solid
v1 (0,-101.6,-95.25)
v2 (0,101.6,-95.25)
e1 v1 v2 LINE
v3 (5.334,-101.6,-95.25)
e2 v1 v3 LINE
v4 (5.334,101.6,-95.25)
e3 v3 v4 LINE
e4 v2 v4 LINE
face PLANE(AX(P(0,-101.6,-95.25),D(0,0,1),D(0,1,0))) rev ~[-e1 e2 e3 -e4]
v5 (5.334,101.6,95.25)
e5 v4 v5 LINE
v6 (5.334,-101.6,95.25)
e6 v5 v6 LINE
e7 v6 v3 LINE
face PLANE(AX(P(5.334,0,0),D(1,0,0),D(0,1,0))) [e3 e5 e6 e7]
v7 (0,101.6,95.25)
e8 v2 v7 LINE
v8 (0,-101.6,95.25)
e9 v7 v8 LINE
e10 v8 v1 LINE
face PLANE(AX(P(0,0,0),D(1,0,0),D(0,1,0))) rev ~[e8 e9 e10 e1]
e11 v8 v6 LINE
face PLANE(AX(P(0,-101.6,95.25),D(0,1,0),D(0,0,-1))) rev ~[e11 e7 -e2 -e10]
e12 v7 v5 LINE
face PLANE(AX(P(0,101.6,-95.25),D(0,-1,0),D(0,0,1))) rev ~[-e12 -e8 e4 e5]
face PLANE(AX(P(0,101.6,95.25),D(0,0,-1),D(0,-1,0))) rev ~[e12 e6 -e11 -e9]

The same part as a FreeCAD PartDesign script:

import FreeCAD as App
import Part
import Sketcher
from FreeCAD import Vector
Q = App.Units.Quantity


def add_polygon(sketch, points):
    """Adds a closed chain of lines whose ends are joined by coincident constraints."""
    first, n = sketch.GeometryCount, len(points)
    for a, b in zip(points, points[1:] + points[:1]):
        sketch.addGeometry(Part.LineSegment(App.Vector(*a, 0), App.Vector(*b, 0)), False)
    for i in range(n):
        sketch.addConstraint(Sketcher.Constraint("Coincident", first + i, 2, first + (i + 1) % n, 1))

doc = App.newDocument("Part")
body = doc.addObject("PartDesign::Body", "Body")

sketch1 = body.newObject("Sketcher::SketchObject", "Sketch")
sketch1.AttachmentSupport = (doc.getObject("YZ_Plane"), [""])
sketch1.MapMode = "FlatFace"
add_polygon(sketch1, [(102, -95), (102, 95), (-102, 95), (-102, -95)])
sketch1.addConstraint([
    Sketcher.Constraint("Vertical", 0),
    Sketcher.Constraint("Horizontal", 1),
    Sketcher.Constraint("Vertical", 2),
    Sketcher.Constraint("Horizontal", 3),
    Sketcher.Constraint("Symmetric", 0, 2, 2, 2, -1, 1),
    Sketcher.Constraint("DistanceX", 1, 2, 1, 1, Q("8 in")),
    Sketcher.Constraint("DistanceY", 0, 1, 0, 2, Q("7.5 in")),
])
pad1 = body.newObject("PartDesign::Pad", "Pad")
pad1.Profile = sketch1
pad1.Length = Q("0.21 in")

doc.recompute()
